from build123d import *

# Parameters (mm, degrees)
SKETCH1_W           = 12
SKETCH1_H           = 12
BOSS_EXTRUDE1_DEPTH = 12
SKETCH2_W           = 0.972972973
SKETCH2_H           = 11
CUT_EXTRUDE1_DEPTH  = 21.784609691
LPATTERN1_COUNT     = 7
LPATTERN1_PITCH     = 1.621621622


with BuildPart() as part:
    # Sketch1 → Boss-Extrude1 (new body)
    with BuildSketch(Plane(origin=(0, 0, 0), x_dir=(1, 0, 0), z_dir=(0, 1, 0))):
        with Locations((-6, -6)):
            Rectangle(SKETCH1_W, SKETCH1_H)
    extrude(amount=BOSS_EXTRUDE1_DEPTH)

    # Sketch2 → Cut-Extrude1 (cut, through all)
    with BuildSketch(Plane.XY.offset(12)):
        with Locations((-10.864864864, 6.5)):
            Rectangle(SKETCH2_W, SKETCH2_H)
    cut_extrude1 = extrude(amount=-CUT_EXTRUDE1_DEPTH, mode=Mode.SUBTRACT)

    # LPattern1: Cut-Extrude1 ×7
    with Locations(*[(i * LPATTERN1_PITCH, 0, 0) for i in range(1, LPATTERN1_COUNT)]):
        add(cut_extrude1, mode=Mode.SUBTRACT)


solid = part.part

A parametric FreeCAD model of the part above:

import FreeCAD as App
import Part
import Sketcher


def add_polygon(sketch, points):
    """Adds a closed chain of lines whose ends are joined by coincident constraints."""
    first, n = sketch.GeometryCount, len(points)
    for a, b in zip(points, points[1:] + points[:1]):
        sketch.addGeometry(Part.LineSegment(App.Vector(*a, 0), App.Vector(*b, 0)), False)
    for i in range(n):
        sketch.addConstraint(Sketcher.Constraint("Coincident", first + i, 2, first + (i + 1) % n, 1))

doc = App.newDocument("Part")
body = doc.addObject("PartDesign::Body", "Body")

sketch1 = doc.addObject("Sketcher::SketchObject", "Sketch")
body.addObject(sketch1)
sketch1.AttachmentSupport = (doc.XZ_Plane, [""])
sketch1.MapMode = "FlatFace"
add_polygon(sketch1, [(-12, 0), (-12, 12), (0, 12), (0, 0)])
sketch1.addConstraint([
    Sketcher.Constraint("Vertical", 0),
    Sketcher.Constraint("Horizontal", 1),
    Sketcher.Constraint("Vertical", 2),
    Sketcher.Constraint("Horizontal", 3),
    Sketcher.Constraint("Coincident", 2, 2, -1, 1),
    Sketcher.Constraint("Equal", 3, 0),
    Sketcher.Constraint("DistanceX", 1, 1, 1, 2, 12.0),
])
pad1 = doc.addObject("PartDesign::Pad", "Pad")
body.addObject(pad1)
pad1.Profile = sketch1
pad1.Length = 12
pad1.Reversed = True

sketch2 = doc.addObject("Sketcher::SketchObject", "Sketch001")
body.addObject(sketch2)
sketch2.AttachmentSupport = (doc.XY_Plane, [""])
sketch2.MapMode = "FlatFace"
sketch2.AttachmentOffset = App.Placement(App.Vector(0, 0, 12), App.Rotation())
add_polygon(sketch2, [(-11.351351, 12), (-11.351351, 1), (-10.378378, 1), (-10.378378, 12)])
sketch2.addConstraint([
    Sketcher.Constraint("Vertical", 0),
    Sketcher.Constraint("Horizontal", 1),
    Sketcher.Constraint("Vertical", 2),
    Sketcher.Constraint("Horizontal", 3),
    Sketcher.Constraint("DistanceY", 0, 2, 0, 1, 11.0),
    Sketcher.Constraint("DistanceY", -1, 1, 0, 2, 1.0),
    Sketcher.Constraint("DistanceX", 1, 1, 1, 2, 0.972973),
    Sketcher.Constraint("DistanceX", 0, 2, -1, 1, 11.351351),
])
pocket1 = doc.addObject("PartDesign::Pocket", "Pocket")
body.addObject(pocket1)
pocket1.Profile = sketch2
pocket1.Type = "ThroughAll"
doc.recompute()

linearpattern = doc.addObject("PartDesign::LinearPattern", "LinearPattern")
body.addObject(linearpattern)
linearpattern.Originals = [pocket1]
linearpattern.Direction = (doc.X_Axis, [""])
linearpattern.Mode = "offset"
linearpattern.Offset = 1.621622
linearpattern.Occurrences = 7
body.Tip = linearpattern

doc.recompute()
